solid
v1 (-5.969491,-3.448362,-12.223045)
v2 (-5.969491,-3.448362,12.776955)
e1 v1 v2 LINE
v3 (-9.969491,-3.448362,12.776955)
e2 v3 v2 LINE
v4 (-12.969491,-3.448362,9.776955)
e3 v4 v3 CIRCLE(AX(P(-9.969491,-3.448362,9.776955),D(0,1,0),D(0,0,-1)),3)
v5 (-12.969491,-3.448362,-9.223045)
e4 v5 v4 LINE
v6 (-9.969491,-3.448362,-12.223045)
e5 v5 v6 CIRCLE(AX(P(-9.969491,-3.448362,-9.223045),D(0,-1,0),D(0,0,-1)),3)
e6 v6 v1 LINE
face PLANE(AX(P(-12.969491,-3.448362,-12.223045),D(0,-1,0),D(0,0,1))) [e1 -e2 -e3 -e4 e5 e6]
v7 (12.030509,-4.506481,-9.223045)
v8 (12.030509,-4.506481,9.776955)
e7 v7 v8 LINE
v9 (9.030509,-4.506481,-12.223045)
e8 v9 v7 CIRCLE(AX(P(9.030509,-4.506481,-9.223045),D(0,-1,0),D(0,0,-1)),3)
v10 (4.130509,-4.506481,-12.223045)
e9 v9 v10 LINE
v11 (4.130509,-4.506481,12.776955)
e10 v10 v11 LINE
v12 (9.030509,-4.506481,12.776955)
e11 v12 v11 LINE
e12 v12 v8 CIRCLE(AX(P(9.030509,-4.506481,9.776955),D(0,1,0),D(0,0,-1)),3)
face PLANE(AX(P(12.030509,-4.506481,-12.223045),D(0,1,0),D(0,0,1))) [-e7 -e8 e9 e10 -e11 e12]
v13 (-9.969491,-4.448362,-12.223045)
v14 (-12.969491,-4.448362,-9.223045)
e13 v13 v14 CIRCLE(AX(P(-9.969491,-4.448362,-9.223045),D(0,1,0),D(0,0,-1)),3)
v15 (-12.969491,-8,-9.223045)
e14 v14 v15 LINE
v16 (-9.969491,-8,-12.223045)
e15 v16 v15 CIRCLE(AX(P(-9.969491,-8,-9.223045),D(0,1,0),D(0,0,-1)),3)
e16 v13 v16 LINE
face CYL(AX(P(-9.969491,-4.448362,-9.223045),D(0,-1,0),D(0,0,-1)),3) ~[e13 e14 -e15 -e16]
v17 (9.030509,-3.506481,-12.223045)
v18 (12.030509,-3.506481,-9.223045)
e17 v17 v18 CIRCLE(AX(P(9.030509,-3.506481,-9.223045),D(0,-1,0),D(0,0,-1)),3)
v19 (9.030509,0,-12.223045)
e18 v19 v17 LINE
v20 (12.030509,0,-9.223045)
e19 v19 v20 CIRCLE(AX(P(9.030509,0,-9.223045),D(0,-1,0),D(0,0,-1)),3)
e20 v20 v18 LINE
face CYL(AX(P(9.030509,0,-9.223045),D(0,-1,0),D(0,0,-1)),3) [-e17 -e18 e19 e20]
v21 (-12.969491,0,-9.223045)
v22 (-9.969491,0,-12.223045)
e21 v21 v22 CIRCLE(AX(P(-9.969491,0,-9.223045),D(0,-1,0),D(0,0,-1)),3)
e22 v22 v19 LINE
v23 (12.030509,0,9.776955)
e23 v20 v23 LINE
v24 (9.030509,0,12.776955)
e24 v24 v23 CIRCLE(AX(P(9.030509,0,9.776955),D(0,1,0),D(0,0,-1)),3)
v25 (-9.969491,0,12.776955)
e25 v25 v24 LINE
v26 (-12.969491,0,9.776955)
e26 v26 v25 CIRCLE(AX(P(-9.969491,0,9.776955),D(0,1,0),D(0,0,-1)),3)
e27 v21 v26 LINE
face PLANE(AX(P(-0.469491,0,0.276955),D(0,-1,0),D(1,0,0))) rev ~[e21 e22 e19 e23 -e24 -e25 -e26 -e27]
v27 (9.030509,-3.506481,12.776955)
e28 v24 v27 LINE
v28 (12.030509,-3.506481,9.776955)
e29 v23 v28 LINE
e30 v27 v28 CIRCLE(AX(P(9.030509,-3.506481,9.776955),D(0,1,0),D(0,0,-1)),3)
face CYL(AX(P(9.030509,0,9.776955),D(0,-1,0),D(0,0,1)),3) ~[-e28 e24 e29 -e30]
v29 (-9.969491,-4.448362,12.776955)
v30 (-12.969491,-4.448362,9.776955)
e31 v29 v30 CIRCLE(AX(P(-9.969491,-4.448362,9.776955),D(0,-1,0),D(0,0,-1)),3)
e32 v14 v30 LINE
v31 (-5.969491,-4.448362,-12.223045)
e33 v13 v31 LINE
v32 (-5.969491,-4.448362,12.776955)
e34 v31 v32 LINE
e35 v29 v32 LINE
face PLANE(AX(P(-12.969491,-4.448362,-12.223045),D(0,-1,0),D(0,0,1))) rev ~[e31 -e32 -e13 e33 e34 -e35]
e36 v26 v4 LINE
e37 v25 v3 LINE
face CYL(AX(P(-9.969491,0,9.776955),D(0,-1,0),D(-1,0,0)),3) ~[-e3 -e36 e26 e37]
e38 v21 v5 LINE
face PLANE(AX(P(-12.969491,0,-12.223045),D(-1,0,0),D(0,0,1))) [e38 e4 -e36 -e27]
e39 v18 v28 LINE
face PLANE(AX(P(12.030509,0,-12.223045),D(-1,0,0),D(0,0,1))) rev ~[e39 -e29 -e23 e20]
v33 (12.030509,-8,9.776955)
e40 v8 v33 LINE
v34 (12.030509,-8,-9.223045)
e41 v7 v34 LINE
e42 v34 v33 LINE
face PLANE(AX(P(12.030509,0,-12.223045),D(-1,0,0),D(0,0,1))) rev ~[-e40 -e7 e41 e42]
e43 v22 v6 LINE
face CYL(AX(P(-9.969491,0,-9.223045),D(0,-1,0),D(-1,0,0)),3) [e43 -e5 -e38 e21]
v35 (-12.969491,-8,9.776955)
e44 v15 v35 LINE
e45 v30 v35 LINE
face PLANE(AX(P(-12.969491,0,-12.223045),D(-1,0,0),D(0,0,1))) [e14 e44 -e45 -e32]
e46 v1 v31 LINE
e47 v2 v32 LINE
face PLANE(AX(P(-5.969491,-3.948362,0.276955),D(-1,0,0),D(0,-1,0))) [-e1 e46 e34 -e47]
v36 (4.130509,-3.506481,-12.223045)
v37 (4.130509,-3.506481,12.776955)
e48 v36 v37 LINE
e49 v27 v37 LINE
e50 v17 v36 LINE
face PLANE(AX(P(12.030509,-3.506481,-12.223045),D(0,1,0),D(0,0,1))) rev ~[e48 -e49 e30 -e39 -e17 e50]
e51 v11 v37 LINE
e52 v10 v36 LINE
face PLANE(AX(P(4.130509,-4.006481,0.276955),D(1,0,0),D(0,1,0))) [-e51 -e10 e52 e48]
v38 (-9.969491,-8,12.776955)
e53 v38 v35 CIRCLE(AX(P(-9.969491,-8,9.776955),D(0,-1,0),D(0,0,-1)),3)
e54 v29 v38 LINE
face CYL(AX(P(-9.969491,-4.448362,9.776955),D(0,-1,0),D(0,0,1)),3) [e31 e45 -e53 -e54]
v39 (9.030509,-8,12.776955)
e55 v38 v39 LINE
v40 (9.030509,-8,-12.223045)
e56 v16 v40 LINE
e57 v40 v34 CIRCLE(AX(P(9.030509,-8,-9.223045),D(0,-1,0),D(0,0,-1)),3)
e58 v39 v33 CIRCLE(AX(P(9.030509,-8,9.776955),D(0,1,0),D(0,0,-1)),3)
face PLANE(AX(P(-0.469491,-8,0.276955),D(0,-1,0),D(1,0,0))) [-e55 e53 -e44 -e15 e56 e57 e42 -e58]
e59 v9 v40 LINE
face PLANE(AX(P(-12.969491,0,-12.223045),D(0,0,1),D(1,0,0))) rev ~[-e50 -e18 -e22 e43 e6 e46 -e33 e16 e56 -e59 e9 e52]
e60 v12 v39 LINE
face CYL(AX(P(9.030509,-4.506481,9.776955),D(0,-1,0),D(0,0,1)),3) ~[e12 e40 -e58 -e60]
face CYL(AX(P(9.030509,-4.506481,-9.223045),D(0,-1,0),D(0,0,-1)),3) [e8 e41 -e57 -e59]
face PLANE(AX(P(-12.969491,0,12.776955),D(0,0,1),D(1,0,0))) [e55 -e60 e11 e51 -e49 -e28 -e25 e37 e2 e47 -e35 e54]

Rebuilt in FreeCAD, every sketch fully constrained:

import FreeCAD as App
import Part
import Sketcher

V = App.Vector
Q = App.Units.Quantity


def edges_at(feature, points):
    """Names of the edges that pass closest to the given points."""
    edges = feature.Shape.Edges
    near = lambda p: min(range(len(edges)), key=lambda i: edges[i].distToShape(Part.Vertex(*p))[0])
    return sorted({f"Edge{near(p) + 1}" for p in points})

doc = App.newDocument("Part")
body = doc.addObject("PartDesign::Body", "Body")

sketch1 = body.newObject("Sketcher::SketchObject", "Sketch")
sketch1.AttachmentSupport = (doc.getObject("XZ_Plane"), [""])
sketch1.MapMode = "FlatFace"
sketch1.addGeometry([
    Part.LineSegment(V(-13, 13, 0), V(-13, -12, 0)),
    Part.LineSegment(V(-13, -12, 0), V(12, -12, 0)),
    Part.LineSegment(V(12, -12, 0), V(12, 13, 0)),
    Part.LineSegment(V(12, 13, 0), V(-13, 13, 0)),
], False)
sketch1.addConstraint([
    Sketcher.Constraint("Coincident", 0, 2, 1, 1),
    Sketcher.Constraint("Coincident", 1, 2, 2, 1),
    Sketcher.Constraint("Coincident", 2, 2, 3, 1),
    Sketcher.Constraint("Coincident", 3, 2, 0, 1),
    Sketcher.Constraint("Vertical", 0),
    Sketcher.Constraint("Horizontal", 1),
    Sketcher.Constraint("Vertical", 2),
    Sketcher.Constraint("Horizontal", 3),
    Sketcher.Constraint("Equal", 3, 0),
    Sketcher.Constraint("DistanceX", 1, 1, 1, 2, Q("25 mm")),
    Sketcher.Constraint("DistanceX", 0, 2, -1, 1, Q("12.969491 mm")),
    Sketcher.Constraint("DistanceY", 0, 2, -1, 1, Q("12.223045 mm")),
])
pad1 = body.newObject("PartDesign::Pad", "Pad")
pad1.Profile = sketch1
pad1.Length = 8

sketch2 = body.newObject("Sketcher::SketchObject", "Sketch001")
sketch2.AttachmentSupport = (doc.getObject("YZ_Plane"), [""])
sketch2.MapMode = "FlatFace"
sketch2.AttachmentOffset = App.Placement(V(0, 0, -12.969491), App.Rotation())
sketch2.addGeometry([
    Part.LineSegment(V(-3.4, 12.8, 0), V(-3.4, -12.2, 0)),
    Part.LineSegment(V(-3.4, -12.2, 0), V(-4.4, -12.2, 0)),
    Part.LineSegment(V(-4.4, -12.2, 0), V(-4.4, 12.8, 0)),
    Part.LineSegment(V(-4.4, 12.8, 0), V(-3.4, 12.8, 0)),
], False)
sketch2.addConstraint([
    Sketcher.Constraint("Coincident", 0, 2, 1, 1),
    Sketcher.Constraint("Coincident", 1, 2, 2, 1),
    Sketcher.Constraint("Coincident", 2, 2, 3, 1),
    Sketcher.Constraint("Coincident", 3, 2, 0, 1),
    Sketcher.Constraint("Vertical", 0),
    Sketcher.Constraint("Horizontal", 1),
    Sketcher.Constraint("Vertical", 2),
    Sketcher.Constraint("Horizontal", 3),
    Sketcher.Constraint("DistanceX", 1, 2, 1, 1, Q("1 mm")),
    Sketcher.Constraint("DistanceY", 0, 2, 0, 1, Q("25 mm")),
    Sketcher.Constraint("DistanceX", 0, 2, -1, 1, Q("3.448362 mm")),
    Sketcher.Constraint("DistanceY", 0, 2, -1, 1, Q("12.223045 mm")),
])
pocket1 = body.newObject("PartDesign::Pocket", "Pocket")
pocket1.Profile = sketch2
pocket1.Length = 7
pocket1.Reversed = True

sketch3 = body.newObject("Sketcher::SketchObject", "Sketch002")
sketch3.AttachmentSupport = (doc.getObject("YZ_Plane"), [""])
sketch3.MapMode = "FlatFace"
sketch3.AttachmentOffset = App.Placement(V(0, 0, 12.030509), App.Rotation())
sketch3.addGeometry([
    Part.LineSegment(V(-4.5, 12.8, 0), V(-4.5, -12.2, 0)),
    Part.LineSegment(V(-4.5, -12.2, 0), V(-3.5, -12.2, 0)),
    Part.LineSegment(V(-3.5, -12.2, 0), V(-3.5, 12.8, 0)),
    Part.LineSegment(V(-3.5, 12.8, 0), V(-4.5, 12.8, 0)),
], False)
sketch3.addConstraint([
    Sketcher.Constraint("Coincident", 0, 2, 1, 1),
    Sketcher.Constraint("Coincident", 1, 2, 2, 1),
    Sketcher.Constraint("Coincident", 2, 2, 3, 1),
    Sketcher.Constraint("Coincident", 3, 2, 0, 1),
    Sketcher.Constraint("Vertical", 0),
    Sketcher.Constraint("Horizontal", 1),
    Sketcher.Constraint("Vertical", 2),
    Sketcher.Constraint("Horizontal", 3),
    Sketcher.Constraint("DistanceX", 1, 1, 1, 2, Q("1 mm")),
    Sketcher.Constraint("DistanceY", 0, 2, 0, 1, Q("25 mm")),
    Sketcher.Constraint("DistanceX", 0, 2, -1, 1, Q("4.506481 mm")),
    Sketcher.Constraint("DistanceY", 0, 2, -1, 1, Q("12.223045 mm")),
])
pocket2 = body.newObject("PartDesign::Pocket", "Pocket001")
pocket2.Profile = sketch3
pocket2.Length = 7.9
doc.recompute()

fillet = body.newObject("PartDesign::Fillet", "Fillet")
fillet.Base = (pocket2, edges_at(pocket2, [
    (-12.969, -1.724, 12.777),
    (-12.969, -6.224, 12.777),
    (12.031, -6.253, 12.777),
    (12.031, -1.753, 12.777),
    (12.031, -6.253, -12.223),
    (12.031, -1.753, -12.223),
    (-12.969, -1.724, -12.223),
    (-12.969, -6.224, -12.223),
]))
fillet.Radius = 3

doc.recompute()
